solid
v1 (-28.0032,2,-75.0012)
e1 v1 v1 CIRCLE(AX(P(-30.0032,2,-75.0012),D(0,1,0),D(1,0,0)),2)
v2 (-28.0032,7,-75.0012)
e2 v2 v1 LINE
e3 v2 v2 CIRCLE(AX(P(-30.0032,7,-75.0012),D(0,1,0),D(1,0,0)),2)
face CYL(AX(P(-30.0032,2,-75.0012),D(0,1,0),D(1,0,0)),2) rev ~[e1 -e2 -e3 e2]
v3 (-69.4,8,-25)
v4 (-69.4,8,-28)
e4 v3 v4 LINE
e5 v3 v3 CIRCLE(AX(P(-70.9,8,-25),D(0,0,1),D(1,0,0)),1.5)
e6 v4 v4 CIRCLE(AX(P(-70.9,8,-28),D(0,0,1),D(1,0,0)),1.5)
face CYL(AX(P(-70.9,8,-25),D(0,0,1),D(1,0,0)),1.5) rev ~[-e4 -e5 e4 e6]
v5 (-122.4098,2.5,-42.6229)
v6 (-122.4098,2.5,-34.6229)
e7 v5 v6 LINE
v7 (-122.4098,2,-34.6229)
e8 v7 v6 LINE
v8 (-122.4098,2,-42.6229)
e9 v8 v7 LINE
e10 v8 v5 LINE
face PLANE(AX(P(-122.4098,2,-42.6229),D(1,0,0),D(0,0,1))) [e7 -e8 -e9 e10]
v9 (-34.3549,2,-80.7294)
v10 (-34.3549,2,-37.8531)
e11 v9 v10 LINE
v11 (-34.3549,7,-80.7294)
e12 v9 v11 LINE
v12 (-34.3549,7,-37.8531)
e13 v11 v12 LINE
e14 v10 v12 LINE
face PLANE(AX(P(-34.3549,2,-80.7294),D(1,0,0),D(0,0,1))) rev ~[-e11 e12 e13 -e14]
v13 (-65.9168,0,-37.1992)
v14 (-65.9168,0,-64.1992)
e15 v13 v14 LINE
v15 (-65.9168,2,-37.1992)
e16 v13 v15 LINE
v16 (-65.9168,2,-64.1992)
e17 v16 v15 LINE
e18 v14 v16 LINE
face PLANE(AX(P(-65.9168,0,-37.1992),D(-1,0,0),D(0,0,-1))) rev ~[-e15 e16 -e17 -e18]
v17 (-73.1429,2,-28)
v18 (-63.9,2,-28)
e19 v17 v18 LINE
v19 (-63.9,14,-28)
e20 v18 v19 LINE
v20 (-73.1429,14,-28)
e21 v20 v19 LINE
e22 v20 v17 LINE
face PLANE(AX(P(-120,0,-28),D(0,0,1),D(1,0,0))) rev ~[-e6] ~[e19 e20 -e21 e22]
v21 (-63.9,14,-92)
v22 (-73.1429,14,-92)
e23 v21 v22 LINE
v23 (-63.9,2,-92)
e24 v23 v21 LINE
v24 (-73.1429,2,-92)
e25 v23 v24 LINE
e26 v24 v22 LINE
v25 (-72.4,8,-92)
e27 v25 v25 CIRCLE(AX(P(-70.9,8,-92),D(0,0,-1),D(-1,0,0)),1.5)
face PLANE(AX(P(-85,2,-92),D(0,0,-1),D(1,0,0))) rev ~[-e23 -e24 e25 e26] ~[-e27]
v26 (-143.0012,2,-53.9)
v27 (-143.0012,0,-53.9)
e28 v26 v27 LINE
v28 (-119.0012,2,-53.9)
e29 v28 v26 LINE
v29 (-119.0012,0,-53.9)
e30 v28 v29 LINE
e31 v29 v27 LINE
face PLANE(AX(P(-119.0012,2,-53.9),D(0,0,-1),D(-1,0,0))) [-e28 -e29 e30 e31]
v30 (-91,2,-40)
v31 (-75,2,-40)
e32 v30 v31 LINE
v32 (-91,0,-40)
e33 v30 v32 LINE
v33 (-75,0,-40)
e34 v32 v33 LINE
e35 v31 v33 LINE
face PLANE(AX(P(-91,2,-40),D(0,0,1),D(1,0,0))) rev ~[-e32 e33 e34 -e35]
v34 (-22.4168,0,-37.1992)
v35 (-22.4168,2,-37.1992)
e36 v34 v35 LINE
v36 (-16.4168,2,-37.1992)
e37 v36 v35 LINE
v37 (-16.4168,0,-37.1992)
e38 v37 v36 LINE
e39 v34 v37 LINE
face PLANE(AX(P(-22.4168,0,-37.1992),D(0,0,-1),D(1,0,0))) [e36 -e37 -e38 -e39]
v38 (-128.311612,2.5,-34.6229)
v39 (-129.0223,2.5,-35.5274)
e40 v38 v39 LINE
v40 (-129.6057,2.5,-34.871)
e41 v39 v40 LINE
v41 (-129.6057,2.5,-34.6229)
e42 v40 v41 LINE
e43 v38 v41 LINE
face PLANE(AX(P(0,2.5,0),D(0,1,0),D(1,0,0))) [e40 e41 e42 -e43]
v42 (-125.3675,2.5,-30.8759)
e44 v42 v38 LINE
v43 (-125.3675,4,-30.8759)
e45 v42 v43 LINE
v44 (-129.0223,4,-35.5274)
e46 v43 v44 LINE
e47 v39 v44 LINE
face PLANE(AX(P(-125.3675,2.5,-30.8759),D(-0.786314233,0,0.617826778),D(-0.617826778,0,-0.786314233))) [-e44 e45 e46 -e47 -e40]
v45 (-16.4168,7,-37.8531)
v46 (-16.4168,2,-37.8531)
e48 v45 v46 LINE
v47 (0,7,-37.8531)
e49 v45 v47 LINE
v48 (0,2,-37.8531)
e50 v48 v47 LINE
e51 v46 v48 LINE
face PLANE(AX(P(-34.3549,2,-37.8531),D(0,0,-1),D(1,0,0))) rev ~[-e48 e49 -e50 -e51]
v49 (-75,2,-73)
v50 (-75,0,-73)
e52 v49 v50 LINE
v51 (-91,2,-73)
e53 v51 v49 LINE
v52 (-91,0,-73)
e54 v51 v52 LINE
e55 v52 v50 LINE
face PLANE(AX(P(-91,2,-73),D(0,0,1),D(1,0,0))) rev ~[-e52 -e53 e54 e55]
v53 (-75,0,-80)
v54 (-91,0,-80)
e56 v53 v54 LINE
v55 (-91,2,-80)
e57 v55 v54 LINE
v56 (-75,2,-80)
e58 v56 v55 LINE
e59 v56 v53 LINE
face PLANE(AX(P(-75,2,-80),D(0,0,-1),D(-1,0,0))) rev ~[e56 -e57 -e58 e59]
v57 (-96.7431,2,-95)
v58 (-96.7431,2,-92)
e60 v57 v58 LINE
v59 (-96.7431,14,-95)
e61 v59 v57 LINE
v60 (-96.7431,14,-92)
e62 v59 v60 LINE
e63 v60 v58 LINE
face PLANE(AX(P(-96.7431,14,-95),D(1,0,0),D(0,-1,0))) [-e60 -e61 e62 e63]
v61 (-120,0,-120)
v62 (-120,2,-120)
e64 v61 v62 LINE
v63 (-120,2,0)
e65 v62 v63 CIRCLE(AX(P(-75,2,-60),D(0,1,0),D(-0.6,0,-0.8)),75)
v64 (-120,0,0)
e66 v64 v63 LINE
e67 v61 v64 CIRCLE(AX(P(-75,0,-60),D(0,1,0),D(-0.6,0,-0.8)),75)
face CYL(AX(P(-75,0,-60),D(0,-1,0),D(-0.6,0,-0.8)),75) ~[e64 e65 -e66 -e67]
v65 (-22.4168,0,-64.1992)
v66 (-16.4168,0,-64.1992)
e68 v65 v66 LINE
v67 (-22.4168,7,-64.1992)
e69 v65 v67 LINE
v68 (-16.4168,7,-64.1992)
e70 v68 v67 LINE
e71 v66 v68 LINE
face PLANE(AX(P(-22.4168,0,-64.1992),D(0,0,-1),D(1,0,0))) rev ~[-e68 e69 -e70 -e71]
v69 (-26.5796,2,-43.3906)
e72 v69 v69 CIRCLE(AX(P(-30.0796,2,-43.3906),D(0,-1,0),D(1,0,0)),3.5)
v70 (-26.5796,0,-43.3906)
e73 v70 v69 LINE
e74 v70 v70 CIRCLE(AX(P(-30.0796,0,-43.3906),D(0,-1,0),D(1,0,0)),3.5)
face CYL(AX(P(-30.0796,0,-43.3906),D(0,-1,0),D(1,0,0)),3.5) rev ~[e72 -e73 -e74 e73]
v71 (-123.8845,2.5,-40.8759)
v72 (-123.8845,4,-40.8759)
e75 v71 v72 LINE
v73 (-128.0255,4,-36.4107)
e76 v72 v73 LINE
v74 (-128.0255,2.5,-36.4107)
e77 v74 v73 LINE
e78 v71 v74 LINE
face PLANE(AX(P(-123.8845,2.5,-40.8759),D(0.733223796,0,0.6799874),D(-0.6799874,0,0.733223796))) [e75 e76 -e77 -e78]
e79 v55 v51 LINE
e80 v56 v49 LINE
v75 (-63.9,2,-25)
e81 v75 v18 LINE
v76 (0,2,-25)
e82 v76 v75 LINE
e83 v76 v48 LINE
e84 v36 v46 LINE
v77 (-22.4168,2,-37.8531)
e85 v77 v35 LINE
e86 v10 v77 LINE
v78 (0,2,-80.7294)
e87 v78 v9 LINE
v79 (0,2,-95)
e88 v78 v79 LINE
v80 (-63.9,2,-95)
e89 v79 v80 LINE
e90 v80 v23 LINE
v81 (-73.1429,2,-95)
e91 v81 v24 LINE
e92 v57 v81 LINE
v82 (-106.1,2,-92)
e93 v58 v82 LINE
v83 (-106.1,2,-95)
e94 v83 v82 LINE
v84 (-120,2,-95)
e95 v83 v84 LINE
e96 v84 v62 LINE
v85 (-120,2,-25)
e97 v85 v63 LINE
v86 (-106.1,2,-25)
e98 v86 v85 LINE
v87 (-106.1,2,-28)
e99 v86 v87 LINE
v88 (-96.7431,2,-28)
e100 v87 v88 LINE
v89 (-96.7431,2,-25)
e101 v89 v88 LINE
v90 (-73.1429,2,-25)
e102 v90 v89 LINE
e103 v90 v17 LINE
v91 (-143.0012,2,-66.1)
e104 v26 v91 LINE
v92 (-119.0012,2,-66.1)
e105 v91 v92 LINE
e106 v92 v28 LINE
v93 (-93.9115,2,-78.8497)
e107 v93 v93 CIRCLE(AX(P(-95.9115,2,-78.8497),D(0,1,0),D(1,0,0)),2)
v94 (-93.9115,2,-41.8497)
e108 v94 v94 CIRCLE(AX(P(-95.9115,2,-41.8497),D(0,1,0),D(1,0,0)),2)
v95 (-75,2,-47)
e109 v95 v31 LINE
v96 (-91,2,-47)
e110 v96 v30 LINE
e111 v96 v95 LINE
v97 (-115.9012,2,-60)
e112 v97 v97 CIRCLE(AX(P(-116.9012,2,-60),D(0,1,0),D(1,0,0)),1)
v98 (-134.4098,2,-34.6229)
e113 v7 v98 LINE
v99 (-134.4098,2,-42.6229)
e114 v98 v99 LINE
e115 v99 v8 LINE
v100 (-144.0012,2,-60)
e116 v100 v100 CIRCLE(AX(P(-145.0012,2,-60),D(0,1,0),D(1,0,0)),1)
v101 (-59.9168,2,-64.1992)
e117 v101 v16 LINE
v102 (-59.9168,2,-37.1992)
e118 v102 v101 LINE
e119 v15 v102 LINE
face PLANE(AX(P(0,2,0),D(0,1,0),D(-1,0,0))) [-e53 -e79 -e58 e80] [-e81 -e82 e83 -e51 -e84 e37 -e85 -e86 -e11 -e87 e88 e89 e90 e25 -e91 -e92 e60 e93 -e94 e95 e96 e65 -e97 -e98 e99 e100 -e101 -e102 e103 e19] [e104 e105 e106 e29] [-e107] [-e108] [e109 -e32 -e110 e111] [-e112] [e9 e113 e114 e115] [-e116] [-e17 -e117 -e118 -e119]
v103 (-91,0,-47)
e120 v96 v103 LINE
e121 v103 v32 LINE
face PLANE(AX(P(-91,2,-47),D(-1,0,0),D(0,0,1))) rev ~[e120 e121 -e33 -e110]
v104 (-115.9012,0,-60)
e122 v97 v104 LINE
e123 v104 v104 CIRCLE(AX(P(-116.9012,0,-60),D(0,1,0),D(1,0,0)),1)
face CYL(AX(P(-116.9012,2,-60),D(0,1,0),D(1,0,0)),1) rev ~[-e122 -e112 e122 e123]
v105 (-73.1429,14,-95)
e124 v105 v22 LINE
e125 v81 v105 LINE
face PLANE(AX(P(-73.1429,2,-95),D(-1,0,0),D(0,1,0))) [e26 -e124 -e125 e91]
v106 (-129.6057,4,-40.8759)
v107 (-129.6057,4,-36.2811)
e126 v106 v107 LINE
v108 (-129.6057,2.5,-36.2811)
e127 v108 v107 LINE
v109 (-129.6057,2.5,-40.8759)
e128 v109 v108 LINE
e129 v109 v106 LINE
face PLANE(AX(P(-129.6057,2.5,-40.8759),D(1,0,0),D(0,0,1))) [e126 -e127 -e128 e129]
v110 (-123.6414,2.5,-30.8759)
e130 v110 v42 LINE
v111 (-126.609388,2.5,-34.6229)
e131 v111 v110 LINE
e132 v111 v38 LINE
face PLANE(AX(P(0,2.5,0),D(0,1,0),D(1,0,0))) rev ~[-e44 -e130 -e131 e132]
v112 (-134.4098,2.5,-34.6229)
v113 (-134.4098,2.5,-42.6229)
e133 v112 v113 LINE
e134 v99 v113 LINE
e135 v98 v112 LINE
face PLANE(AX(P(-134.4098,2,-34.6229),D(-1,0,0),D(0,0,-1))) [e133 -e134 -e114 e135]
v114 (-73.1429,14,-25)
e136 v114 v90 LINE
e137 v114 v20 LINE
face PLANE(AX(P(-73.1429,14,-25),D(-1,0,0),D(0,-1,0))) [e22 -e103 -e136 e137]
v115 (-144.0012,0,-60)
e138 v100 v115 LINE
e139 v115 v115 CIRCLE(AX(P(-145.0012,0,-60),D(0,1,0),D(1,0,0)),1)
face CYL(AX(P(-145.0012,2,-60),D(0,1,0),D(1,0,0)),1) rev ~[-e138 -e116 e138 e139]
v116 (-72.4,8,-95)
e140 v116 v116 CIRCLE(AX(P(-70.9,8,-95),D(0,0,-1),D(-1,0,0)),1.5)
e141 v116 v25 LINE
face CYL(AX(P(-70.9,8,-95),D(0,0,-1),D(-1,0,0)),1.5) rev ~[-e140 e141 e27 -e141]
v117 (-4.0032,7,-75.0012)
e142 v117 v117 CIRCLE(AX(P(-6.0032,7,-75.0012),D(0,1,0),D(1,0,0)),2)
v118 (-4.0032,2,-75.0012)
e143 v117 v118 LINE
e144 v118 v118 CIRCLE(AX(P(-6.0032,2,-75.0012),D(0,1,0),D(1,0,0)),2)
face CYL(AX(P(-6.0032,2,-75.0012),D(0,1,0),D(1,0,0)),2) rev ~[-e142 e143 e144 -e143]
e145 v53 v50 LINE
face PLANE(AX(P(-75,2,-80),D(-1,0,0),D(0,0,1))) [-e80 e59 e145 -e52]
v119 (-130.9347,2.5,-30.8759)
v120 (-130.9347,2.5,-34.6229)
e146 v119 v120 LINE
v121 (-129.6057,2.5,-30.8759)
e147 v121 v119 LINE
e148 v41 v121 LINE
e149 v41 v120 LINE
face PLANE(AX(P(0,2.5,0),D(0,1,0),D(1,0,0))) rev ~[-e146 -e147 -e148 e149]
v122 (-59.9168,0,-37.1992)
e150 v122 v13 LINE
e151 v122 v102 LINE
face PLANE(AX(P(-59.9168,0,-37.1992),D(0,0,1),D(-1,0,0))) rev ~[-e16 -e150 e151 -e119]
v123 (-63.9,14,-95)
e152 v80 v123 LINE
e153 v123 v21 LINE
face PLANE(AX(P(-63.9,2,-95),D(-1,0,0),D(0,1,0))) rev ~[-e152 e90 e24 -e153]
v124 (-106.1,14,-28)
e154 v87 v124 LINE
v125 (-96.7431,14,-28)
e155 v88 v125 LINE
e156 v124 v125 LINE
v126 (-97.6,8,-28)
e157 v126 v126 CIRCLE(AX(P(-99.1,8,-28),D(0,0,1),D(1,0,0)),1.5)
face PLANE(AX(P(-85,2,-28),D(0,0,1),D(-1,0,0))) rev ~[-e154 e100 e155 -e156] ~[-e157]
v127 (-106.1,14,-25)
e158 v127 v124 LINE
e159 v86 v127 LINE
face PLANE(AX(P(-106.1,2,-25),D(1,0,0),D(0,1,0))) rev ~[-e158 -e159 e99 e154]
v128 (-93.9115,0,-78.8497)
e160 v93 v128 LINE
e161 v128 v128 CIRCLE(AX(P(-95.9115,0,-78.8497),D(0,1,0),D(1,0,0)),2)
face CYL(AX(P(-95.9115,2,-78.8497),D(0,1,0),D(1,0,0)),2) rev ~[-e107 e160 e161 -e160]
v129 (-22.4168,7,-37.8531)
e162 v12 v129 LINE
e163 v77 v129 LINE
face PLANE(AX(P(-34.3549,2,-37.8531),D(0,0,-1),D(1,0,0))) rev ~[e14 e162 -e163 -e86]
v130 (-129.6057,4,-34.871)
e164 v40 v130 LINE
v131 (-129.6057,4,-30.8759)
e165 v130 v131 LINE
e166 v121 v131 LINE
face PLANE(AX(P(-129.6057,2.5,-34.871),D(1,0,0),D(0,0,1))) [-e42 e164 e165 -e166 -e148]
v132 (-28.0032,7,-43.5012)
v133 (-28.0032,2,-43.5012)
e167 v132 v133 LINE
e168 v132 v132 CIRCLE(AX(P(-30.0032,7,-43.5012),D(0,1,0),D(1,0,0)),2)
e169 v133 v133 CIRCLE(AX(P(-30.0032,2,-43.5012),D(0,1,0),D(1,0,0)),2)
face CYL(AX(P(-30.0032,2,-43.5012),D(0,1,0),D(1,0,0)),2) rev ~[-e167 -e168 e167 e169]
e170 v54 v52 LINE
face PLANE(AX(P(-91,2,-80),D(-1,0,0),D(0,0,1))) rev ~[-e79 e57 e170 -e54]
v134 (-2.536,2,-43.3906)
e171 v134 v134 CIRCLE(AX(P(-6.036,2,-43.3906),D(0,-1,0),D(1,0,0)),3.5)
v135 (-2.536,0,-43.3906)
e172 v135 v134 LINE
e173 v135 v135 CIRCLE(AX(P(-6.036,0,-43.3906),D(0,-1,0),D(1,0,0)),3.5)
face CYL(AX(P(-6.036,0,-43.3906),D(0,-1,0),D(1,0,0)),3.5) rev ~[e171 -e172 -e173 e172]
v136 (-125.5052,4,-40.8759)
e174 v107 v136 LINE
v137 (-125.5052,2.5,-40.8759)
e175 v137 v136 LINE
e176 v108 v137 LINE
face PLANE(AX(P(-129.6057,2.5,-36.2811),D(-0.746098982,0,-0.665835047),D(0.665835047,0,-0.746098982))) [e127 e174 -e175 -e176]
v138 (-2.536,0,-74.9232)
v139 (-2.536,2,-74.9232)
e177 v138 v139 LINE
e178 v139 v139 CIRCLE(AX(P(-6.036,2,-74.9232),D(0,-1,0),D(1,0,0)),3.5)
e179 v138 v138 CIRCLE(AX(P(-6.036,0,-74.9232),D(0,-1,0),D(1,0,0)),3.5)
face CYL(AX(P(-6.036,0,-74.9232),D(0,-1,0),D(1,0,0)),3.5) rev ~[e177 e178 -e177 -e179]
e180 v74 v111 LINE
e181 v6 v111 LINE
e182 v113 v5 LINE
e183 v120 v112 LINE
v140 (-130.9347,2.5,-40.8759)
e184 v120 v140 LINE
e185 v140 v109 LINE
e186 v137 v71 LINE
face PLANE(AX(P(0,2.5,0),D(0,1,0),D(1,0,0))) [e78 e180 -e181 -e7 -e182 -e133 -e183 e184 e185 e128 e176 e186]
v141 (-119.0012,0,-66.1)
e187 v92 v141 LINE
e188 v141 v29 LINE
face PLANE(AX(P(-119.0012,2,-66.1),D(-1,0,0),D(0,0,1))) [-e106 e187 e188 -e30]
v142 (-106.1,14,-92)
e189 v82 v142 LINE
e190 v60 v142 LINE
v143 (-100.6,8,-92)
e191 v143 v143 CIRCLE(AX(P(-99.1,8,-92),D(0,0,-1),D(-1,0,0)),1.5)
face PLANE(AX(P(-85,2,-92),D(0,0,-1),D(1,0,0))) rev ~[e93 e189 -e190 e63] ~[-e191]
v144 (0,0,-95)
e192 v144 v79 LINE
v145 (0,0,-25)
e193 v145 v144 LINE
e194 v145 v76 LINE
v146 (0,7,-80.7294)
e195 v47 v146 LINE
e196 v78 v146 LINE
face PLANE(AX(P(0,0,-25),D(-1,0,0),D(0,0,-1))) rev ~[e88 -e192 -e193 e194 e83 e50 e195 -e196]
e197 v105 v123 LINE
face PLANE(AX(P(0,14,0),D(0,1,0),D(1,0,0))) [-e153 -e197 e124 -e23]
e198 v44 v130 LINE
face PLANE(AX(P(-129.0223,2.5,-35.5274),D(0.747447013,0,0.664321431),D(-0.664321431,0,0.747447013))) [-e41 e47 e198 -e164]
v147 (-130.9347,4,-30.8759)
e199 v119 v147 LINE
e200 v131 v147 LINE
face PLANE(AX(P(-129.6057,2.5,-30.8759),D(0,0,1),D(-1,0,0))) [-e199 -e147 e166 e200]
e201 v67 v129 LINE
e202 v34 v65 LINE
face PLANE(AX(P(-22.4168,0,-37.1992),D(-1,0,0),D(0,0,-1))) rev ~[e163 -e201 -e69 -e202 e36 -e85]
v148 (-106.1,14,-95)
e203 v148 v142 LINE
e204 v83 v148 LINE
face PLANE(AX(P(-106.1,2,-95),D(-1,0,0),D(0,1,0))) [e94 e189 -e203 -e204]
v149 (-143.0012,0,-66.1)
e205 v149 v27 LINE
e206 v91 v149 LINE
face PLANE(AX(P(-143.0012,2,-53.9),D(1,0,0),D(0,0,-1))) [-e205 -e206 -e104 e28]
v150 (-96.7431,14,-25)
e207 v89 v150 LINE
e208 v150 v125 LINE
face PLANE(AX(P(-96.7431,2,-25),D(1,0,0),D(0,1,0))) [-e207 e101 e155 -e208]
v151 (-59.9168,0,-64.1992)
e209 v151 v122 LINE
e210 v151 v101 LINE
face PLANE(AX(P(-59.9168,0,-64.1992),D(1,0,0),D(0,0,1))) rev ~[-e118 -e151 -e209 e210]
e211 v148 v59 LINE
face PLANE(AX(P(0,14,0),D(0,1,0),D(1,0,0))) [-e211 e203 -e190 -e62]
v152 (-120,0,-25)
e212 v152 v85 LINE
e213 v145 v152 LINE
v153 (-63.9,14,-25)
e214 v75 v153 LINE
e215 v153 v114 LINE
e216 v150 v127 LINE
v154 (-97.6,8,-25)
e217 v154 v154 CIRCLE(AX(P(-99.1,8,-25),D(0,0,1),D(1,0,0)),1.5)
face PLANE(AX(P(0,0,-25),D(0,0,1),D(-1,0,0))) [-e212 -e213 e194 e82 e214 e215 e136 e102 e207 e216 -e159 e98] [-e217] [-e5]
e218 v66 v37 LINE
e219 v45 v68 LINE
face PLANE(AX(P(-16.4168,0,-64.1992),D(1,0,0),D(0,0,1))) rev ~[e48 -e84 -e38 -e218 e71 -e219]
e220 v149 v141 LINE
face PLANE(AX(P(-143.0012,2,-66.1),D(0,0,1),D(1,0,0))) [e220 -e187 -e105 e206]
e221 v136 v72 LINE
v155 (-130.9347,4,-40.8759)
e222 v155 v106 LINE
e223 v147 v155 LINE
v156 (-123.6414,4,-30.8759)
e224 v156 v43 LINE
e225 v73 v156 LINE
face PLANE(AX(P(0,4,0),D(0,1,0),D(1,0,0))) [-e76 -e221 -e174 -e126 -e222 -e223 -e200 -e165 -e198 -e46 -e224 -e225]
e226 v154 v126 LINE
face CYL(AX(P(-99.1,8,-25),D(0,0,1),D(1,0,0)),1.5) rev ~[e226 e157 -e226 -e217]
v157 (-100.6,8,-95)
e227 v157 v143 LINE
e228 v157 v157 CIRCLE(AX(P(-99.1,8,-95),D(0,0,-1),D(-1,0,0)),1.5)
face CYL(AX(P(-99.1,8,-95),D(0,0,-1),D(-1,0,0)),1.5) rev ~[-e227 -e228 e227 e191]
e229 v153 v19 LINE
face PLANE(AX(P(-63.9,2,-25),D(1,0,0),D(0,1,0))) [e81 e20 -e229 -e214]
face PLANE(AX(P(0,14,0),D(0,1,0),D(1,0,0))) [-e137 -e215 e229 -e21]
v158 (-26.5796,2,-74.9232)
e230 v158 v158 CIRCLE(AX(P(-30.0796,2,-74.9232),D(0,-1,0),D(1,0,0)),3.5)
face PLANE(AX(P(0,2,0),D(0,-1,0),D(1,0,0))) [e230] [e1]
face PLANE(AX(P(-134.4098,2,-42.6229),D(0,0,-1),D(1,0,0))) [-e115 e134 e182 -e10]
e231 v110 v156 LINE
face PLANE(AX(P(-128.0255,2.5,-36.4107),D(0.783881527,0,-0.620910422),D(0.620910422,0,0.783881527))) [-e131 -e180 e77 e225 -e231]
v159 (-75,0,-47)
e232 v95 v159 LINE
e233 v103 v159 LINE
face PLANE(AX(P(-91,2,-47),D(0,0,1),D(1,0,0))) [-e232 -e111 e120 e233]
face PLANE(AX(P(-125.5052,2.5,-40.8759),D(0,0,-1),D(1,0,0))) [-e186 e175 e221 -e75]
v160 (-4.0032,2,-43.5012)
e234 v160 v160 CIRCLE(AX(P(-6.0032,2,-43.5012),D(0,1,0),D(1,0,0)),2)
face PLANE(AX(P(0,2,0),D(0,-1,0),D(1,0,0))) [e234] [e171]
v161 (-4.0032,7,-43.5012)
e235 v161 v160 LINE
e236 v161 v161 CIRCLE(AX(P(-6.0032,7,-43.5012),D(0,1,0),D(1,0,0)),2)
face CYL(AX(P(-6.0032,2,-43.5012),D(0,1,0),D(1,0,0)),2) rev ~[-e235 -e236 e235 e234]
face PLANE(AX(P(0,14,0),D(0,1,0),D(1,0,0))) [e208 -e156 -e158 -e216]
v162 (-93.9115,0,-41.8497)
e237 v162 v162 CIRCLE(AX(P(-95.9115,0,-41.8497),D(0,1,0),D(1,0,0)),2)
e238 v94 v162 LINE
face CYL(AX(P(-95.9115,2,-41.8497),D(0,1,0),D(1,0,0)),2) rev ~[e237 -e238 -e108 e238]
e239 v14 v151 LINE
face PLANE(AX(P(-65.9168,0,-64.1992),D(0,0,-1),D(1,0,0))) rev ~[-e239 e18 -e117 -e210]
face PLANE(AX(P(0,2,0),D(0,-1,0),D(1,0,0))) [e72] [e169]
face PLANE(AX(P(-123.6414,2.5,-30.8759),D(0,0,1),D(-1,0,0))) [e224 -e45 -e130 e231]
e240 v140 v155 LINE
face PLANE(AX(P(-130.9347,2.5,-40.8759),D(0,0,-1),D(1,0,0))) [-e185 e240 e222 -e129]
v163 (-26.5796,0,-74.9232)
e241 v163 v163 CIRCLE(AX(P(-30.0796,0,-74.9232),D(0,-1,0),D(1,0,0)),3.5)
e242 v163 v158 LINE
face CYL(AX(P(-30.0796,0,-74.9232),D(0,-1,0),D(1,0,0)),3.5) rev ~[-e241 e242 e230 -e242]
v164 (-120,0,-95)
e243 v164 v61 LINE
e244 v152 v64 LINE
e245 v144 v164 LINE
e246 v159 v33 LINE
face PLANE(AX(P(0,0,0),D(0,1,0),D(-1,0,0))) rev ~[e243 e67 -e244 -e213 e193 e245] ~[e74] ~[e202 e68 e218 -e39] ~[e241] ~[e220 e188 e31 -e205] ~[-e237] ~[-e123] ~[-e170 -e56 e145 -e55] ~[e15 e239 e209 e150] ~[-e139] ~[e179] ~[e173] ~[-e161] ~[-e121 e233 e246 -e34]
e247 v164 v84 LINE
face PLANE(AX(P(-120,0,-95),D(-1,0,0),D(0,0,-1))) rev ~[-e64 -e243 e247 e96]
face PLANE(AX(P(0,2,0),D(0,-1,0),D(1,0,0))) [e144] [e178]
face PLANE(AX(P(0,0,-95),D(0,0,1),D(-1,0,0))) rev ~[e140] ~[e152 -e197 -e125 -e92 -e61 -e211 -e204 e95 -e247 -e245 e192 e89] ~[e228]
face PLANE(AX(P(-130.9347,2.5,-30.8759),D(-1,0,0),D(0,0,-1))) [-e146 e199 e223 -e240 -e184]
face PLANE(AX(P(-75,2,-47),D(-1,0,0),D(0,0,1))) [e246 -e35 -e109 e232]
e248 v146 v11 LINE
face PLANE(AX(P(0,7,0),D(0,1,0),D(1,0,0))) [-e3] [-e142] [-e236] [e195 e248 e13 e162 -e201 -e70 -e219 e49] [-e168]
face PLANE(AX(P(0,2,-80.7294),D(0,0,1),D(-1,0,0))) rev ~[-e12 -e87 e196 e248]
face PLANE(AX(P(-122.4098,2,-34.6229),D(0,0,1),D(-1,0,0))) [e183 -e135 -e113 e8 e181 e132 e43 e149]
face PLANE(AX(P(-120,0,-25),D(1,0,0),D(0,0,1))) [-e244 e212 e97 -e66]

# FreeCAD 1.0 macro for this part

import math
import FreeCAD as App
import Part
import Sketcher
Q = App.Units.Quantity

doc = App.newDocument("Part")
body = doc.addObject("PartDesign::Body", "Body")

# Sketch on XZ plane
sketch1 = body.newObject("Sketcher::SketchObject", "Sketch")
sketch1.AttachmentSupport = (doc.getObject("XZ_Plane"), [""])
sketch1.MapMode = "FlatFace"
sketch1.addGeometry([
    Part.LineSegment(App.Vector(-120, -95, 0), App.Vector(-120, -120, 0)),  # 0
    Part.ArcOfCircle(Part.Circle(App.Vector(-75, -60, 0), App.Vector(0, 0, 1), 75), math.radians(127), math.radians(233)),  # 1
    Part.LineSegment(App.Vector(-120, 0, 0), App.Vector(-120, -25, 0)),  # 2
    Part.LineSegment(App.Vector(-120, -25, 0), App.Vector(0, -25, 0)),  # 3
    Part.LineSegment(App.Vector(0, -25, 0), App.Vector(0, -95, 0)),  # 4
    Part.LineSegment(App.Vector(0, -95, 0), App.Vector(-120, -95, 0)),  # 5
], False)
sketch1.addConstraint([
    Sketcher.Constraint("Coincident", 0, 2, 1, 2),
    Sketcher.Constraint("Coincident", 1, 1, 2, 1),
    Sketcher.Constraint("Coincident", 2, 2, 3, 1),
    Sketcher.Constraint("Coincident", 3, 2, 4, 1),
    Sketcher.Constraint("Coincident", 4, 2, 5, 1),
    Sketcher.Constraint("Coincident", 5, 2, 0, 1),
    Sketcher.Constraint("Vertical", 0),
    Sketcher.Constraint("Vertical", 2),
    Sketcher.Constraint("Horizontal", 3),
    Sketcher.Constraint("Vertical", 4),
    Sketcher.Constraint("Horizontal", 5),
    Sketcher.Constraint("PointOnObject", 1, 1, -1),
    Sketcher.Constraint("PointOnObject", 3, 2, -2),
    Sketcher.Constraint("Vertical", 0, 2, 1, 1),
    Sketcher.Constraint("Equal", 0, 2),
    Sketcher.Constraint("Radius", 1, Q("75 mm")),
    Sketcher.Constraint("DistanceX", 3, 1, 3, 2, Q("120 mm")),
    Sketcher.Constraint("DistanceY", 0, 2, 0, 1, Q("25 mm")),
    Sketcher.Constraint("DistanceX", 1, 3, -1, 1, Q("75 mm")),
])
pad1 = body.newObject("PartDesign::Pad", "Pad")
pad1.Profile = sketch1
pad1.Length = 2
pad1.Reversed = True

# Sketch on XZ plane
sketch2 = body.newObject("Sketcher::SketchObject", "Sketch001")
sketch2.AttachmentSupport = (doc.getObject("XZ_Plane"), [""])
sketch2.MapMode = "FlatFace"
sketch2.AttachmentOffset = App.Placement(App.Vector(0, 0, -2), App.Rotation())
sketch2.addGeometry([
    Part.Circle(App.Vector(-30, -43.5, 0), App.Vector(0, 0, 1), 2),
    Part.Circle(App.Vector(-30, -75, 0), App.Vector(0, 0, 1), 2),
    Part.Circle(App.Vector(-6, -75, 0), App.Vector(0, 0, 1), 2),
    Part.Circle(App.Vector(-6, -43.5, 0), App.Vector(0, 0, 1), 2),
], False)
sketch2.addConstraint([
    Sketcher.Constraint("Equal", 0, 1),
    Sketcher.Constraint("Equal", 1, 2),
    Sketcher.Constraint("Equal", 2, 3),
    Sketcher.Constraint("Horizontal", 1, 3, 2, 3),
    Sketcher.Constraint("Horizontal", 0, 3, 3, 3),
    Sketcher.Constraint("Vertical", 0, 3, 1, 3),
    Sketcher.Constraint("Vertical", 2, 3, 3, 3),
    Sketcher.Constraint("Diameter", 0, Q("4 mm")),
    Sketcher.Constraint("DistanceX", 1, 3, 2, 3, Q("24 mm")),
    Sketcher.Constraint("DistanceY", 1, 3, 0, 3, Q("31.5 mm")),
    Sketcher.Constraint("DistanceX", 2, 3, -1, 1, Q("6.0032 mm")),
    Sketcher.Constraint("DistanceY", 0, 3, -1, 1, Q("43.5012 mm")),
])
pocket1 = body.newObject("PartDesign::Pocket", "Pocket")
pocket1.Profile = sketch2
pocket1.Length = 11
pocket1.Reversed = True

# Sketch on XZ plane
sketch3 = body.newObject("Sketcher::SketchObject", "Sketch002")
sketch3.AttachmentSupport = (doc.getObject("XZ_Plane"), [""])
sketch3.MapMode = "FlatFace"
sketch3.AttachmentOffset = App.Placement(App.Vector(0, 0, -2), App.Rotation())
sketch3.addGeometry([
    Part.LineSegment(App.Vector(-75, -73, 0), App.Vector(-75, -80, 0)),  # 0
    Part.LineSegment(App.Vector(-75, -80, 0), App.Vector(-91, -80, 0)),  # 1
    Part.LineSegment(App.Vector(-91, -80, 0), App.Vector(-91, -73, 0)),  # 2
    Part.LineSegment(App.Vector(-91, -73, 0), App.Vector(-75, -73, 0)),  # 3
    Part.LineSegment(App.Vector(-91, -47, 0), App.Vector(-91, -40, 0)),  # 4
    Part.LineSegment(App.Vector(-91, -40, 0), App.Vector(-75, -40, 0)),  # 5
    Part.LineSegment(App.Vector(-75, -40, 0), App.Vector(-75, -47, 0)),  # 6
    Part.LineSegment(App.Vector(-75, -47, 0), App.Vector(-91, -47, 0)),  # 7
], False)
sketch3.addConstraint([
    Sketcher.Constraint("Coincident", 0, 2, 1, 1),
    Sketcher.Constraint("Coincident", 1, 2, 2, 1),
    Sketcher.Constraint("Coincident", 2, 2, 3, 1),
    Sketcher.Constraint("Coincident", 3, 2, 0, 1),
    Sketcher.Constraint("Coincident", 4, 2, 5, 1),
    Sketcher.Constraint("Coincident", 5, 2, 6, 1),
    Sketcher.Constraint("Coincident", 6, 2, 7, 1),
    Sketcher.Constraint("Coincident", 7, 2, 4, 1),
    Sketcher.Constraint("Vertical", 0),
    Sketcher.Constraint("Horizontal", 1),
    Sketcher.Constraint("Vertical", 2),
    Sketcher.Constraint("Horizontal", 3),
    Sketcher.Constraint("Vertical", 4),
    Sketcher.Constraint("Horizontal", 5),
    Sketcher.Constraint("Vertical", 6),
    Sketcher.Constraint("Horizontal", 7),
    Sketcher.Constraint("Vertical", 2, 2, 4, 2),
    Sketcher.Constraint("Vertical", 3, 2, 5, 2),
    Sketcher.Constraint("Equal", 2, 4),
    Sketcher.Constraint("DistanceX", 1, 2, 1, 1, Q("16 mm")),
    Sketcher.Constraint("DistanceY", 0, 2, 0, 1, Q("7 mm")),
    Sketcher.Constraint("DistanceX", 0, 2, -1, 1, Q("75 mm")),
    Sketcher.Constraint("DistanceY", 0, 2, -1, 1, Q("80 mm")),
    Sketcher.Constraint("DistanceY", 4, 2, -1, 1, Q("40 mm")),
])
pocket2 = body.newObject("PartDesign::Pocket", "Pocket001")
pocket2.Profile = sketch3
pocket2.Length = 3
pocket2.Reversed = True

# Sketch on XZ plane
sketch4 = body.newObject("Sketcher::SketchObject", "Sketch003")
sketch4.AttachmentSupport = (doc.getObject("XZ_Plane"), [""])
sketch4.MapMode = "FlatFace"
sketch4.AttachmentOffset = App.Placement(App.Vector(0, 0, -2), App.Rotation())
sketch4.addGeometry([
    Part.LineSegment(App.Vector(-101.1, -25, 0), App.Vector(-68.9, -25, 0)),  # 0
    Part.LineSegment(App.Vector(-68.9, -25, 0), App.Vector(-68.9, -28, 0)),  # 1
    Part.LineSegment(App.Vector(-68.9, -28, 0), App.Vector(-101.1, -28, 0)),  # 2
    Part.LineSegment(App.Vector(-101.1, -28, 0), App.Vector(-101.1, -25, 0)),  # 3
    Part.LineSegment(App.Vector(-68.9, -95, 0), App.Vector(-101.1, -95, 0)),  # 4
    Part.LineSegment(App.Vector(-101.1, -95, 0), App.Vector(-101.1, -92, 0)),  # 5
    Part.LineSegment(App.Vector(-101.1, -92, 0), App.Vector(-68.9, -92, 0)),  # 6
    Part.LineSegment(App.Vector(-68.9, -92, 0), App.Vector(-68.9, -95, 0)),  # 7
], False)
sketch4.addConstraint([
    Sketcher.Constraint("Coincident", 0, 2, 1, 1),
    Sketcher.Constraint("Coincident", 1, 2, 2, 1),
    Sketcher.Constraint("Coincident", 2, 2, 3, 1),
    Sketcher.Constraint("Coincident", 3, 2, 0, 1),
    Sketcher.Constraint("Coincident", 4, 2, 5, 1),
    Sketcher.Constraint("Coincident", 5, 2, 6, 1),
    Sketcher.Constraint("Coincident", 6, 2, 7, 1),
    Sketcher.Constraint("Coincident", 7, 2, 4, 1),
    Sketcher.Constraint("Horizontal", 0),
    Sketcher.Constraint("Vertical", 1),
    Sketcher.Constraint("Horizontal", 2),
    Sketcher.Constraint("Vertical", 3),
    Sketcher.Constraint("Horizontal", 4),
    Sketcher.Constraint("Vertical", 5),
    Sketcher.Constraint("Horizontal", 6),
    Sketcher.Constraint("Vertical", 7),
    Sketcher.Constraint("Vertical", 3, 2, 4, 2),
    Sketcher.Constraint("Vertical", 1, 2, 6, 2),
    Sketcher.Constraint("Equal", 3, 5),
    Sketcher.Constraint("DistanceY", 1, 2, 1, 1, Q("3 mm")),
    Sketcher.Constraint("DistanceY", 4, 2, 2, 2, Q("67 mm")),
    Sketcher.Constraint("DistanceX", 0, 2, -1, 1, Q("68.9 mm")),
    Sketcher.Constraint("DistanceX", 0, 1, 0, 2, Q("32.2 mm")),
    Sketcher.Constraint("DistanceY", 0, 2, -1, 1, Q("25 mm")),
])
pad2 = body.newObject("PartDesign::Pad", "Pad001")
pad2.Profile = sketch4
pad2.Length = 12
pad2.Reversed = True

# Sketch on XY plane
sketch5 = body.newObject("Sketcher::SketchObject", "Sketch004")
sketch5.AttachmentSupport = (doc.getObject("XY_Plane"), [""])
sketch5.MapMode = "FlatFace"
sketch5.AttachmentOffset = App.Placement(App.Vector(0, 0, -25), App.Rotation())
sketch5.addGeometry([
    Part.Circle(App.Vector(-99.1, 8, 0), App.Vector(0, 0, 1), 1.5),
    Part.Circle(App.Vector(-70.9, 8, 0), App.Vector(0, 0, 1), 1.5),
], False)
sketch5.addConstraint([
    Sketcher.Constraint("Equal", 0, 1),
    Sketcher.Constraint("Horizontal", 0, 3, 1, 3),
    Sketcher.Constraint("Diameter", 0, Q("3 mm")),
    Sketcher.Constraint("DistanceY", -1, 1, 0, 3, Q("8 mm")),
    Sketcher.Constraint("DistanceX", 0, 3, -1, 1, Q("99.1 mm")),
    Sketcher.Constraint("DistanceX", 1, 3, -1, 1, Q("70.9 mm")),
])
pocket3 = body.newObject("PartDesign::Pocket", "Pocket002")
pocket3.Profile = sketch5
pocket3.Length = 3

# Sketch on XY plane
sketch6 = body.newObject("Sketcher::SketchObject", "Sketch005")
sketch6.AttachmentSupport = (doc.getObject("XY_Plane"), [""])
sketch6.MapMode = "FlatFace"
sketch6.AttachmentOffset = App.Placement(App.Vector(0, 0, -95), App.Rotation())
sketch6.addGeometry([
    Part.Circle(App.Vector(-70.9, 8, 0), App.Vector(0, 0, 1), 1.5),
    Part.Circle(App.Vector(-99.1, 8, 0), App.Vector(0, 0, 1), 1.5),
], False)
sketch6.addConstraint([
    Sketcher.Constraint("Equal", 0, 1),
    Sketcher.Constraint("Horizontal", 0, 3, 1, 3),
    Sketcher.Constraint("Diameter", 0, Q("3 mm")),
    Sketcher.Constraint("DistanceY", -1, 1, 0, 3, Q("8 mm")),
    Sketcher.Constraint("DistanceX", 0, 3, -1, 1, Q("70.9 mm")),
    Sketcher.Constraint("DistanceX", 1, 3, -1, 1, Q("99.1 mm")),
])
pocket4 = body.newObject("PartDesign::Pocket", "Pocket003")
pocket4.Profile = sketch6
pocket4.Length = 3
pocket4.Reversed = True

# Sketch on XZ plane
sketch7 = body.newObject("Sketcher::SketchObject", "Sketch006")
sketch7.AttachmentSupport = (doc.getObject("XZ_Plane"), [""])
sketch7.MapMode = "FlatFace"
sketch7.AttachmentOffset = App.Placement(App.Vector(0, 0, -2), App.Rotation())
sketch7.addGeometry([
    Part.Circle(App.Vector(-145, -60, 0), App.Vector(0, 0, 1), 1),
    Part.Circle(App.Vector(-116.9, -60, 0), App.Vector(0, 0, 1), 1),
], False)
sketch7.addConstraint([
    Sketcher.Constraint("Equal", 0, 1),
    Sketcher.Constraint("Horizontal", 0, 3, 1, 3),
    Sketcher.Constraint("Diameter", 0, Q("2 mm")),
    Sketcher.Constraint("DistanceX", 0, 3, 1, 3, Q("28.1 mm")),
    Sketcher.Constraint("DistanceY", 0, 3, -1, 1, Q("60 mm")),
    Sketcher.Constraint("DistanceX", 0, 3, -1, 1, Q("145.0012 mm")),
])
pocket5 = body.newObject("PartDesign::Pocket", "Pocket004")
pocket5.Profile = sketch7
pocket5.Length = 3
pocket5.Reversed = True

# Sketch on XZ plane
sketch8 = body.newObject("Sketcher::SketchObject", "Sketch007")
sketch8.AttachmentSupport = (doc.getObject("XZ_Plane"), [""])
sketch8.MapMode = "FlatFace"
sketch8.AttachmentOffset = App.Placement(App.Vector(0, 0, -2), App.Rotation())
sketch8.addGeometry([
    Part.LineSegment(App.Vector(-143, -66, 0), App.Vector(-143, -54, 0)),
    Part.LineSegment(App.Vector(-143, -54, 0), App.Vector(-119, -54, 0)),
    Part.LineSegment(App.Vector(-119, -54, 0), App.Vector(-119, -66, 0)),
    Part.LineSegment(App.Vector(-119, -66, 0), App.Vector(-143, -66, 0)),
], False)
sketch8.addConstraint([
    Sketcher.Constraint("Coincident", 0, 2, 1, 1),
    Sketcher.Constraint("Coincident", 1, 2, 2, 1),
    Sketcher.Constraint("Coincident", 2, 2, 3, 1),
    Sketcher.Constraint("Coincident", 3, 2, 0, 1),
    Sketcher.Constraint("Vertical", 0),
    Sketcher.Constraint("Horizontal", 1),
    Sketcher.Constraint("Vertical", 2),
    Sketcher.Constraint("Horizontal", 3),
    Sketcher.Constraint("DistanceX", 1, 1, 1, 2, Q("24 mm")),
    Sketcher.Constraint("DistanceY", 0, 1, 0, 2, Q("12.2 mm")),
    Sketcher.Constraint("DistanceY", 0, 2, -1, 1, Q("53.9 mm")),
    Sketcher.Constraint("DistanceX", 0, 2, -1, 1, Q("143.0012 mm")),
])
pocket6 = body.newObject("PartDesign::Pocket", "Pocket005")
pocket6.Profile = sketch8
pocket6.Length = 2
pocket6.Reversed = True

# Sketch on XZ plane
sketch9 = body.newObject("Sketcher::SketchObject", "Sketch008")
sketch9.AttachmentSupport = (doc.getObject("XZ_Plane"), [""])
sketch9.MapMode = "FlatFace"
sketch9.AttachmentOffset = App.Placement(App.Vector(0, 0, -2), App.Rotation())
sketch9.addGeometry([
    Part.LineSegment(App.Vector(-34, -38, 0), App.Vector(0, -38, 0)),
    Part.LineSegment(App.Vector(0, -38, 0), App.Vector(0, -81, 0)),
    Part.LineSegment(App.Vector(0, -81, 0), App.Vector(-34, -81, 0)),
    Part.LineSegment(App.Vector(-34, -81, 0), App.Vector(-34, -38, 0)),
], False)
sketch9.addConstraint([
    Sketcher.Constraint("Coincident", 0, 2, 1, 1),
    Sketcher.Constraint("Coincident", 1, 2, 2, 1),
    Sketcher.Constraint("Coincident", 2, 2, 3, 1),
    Sketcher.Constraint("Coincident", 3, 2, 0, 1),
    Sketcher.Constraint("Horizontal", 0),
    Sketcher.Constraint("Vertical", 1),
    Sketcher.Constraint("Horizontal", 2),
    Sketcher.Constraint("Vertical", 3),
    Sketcher.Constraint("PointOnObject", 0, 2, -2),
    Sketcher.Constraint("DistanceX", 0, 1, 0, 2, Q("34.355 mm")),
    Sketcher.Constraint("DistanceY", 1, 2, 1, 1, Q("42.8763 mm")),
    Sketcher.Constraint("DistanceY", 0, 2, -1, 1, Q("37.853 mm")),
])
pad3 = body.newObject("PartDesign::Pad", "Pad002")
pad3.Profile = sketch9
pad3.Length = 5
pad3.Reversed = True

# Sketch on XZ plane
sketch10 = body.newObject("Sketcher::SketchObject", "Sketch009")
sketch10.AttachmentSupport = (doc.getObject("XZ_Plane"), [""])
sketch10.MapMode = "FlatFace"
sketch10.AttachmentOffset = App.Placement(App.Vector(0, 0, -7), App.Rotation())
sketch10.addGeometry([
    Part.Circle(App.Vector(-30, -43.5, 0), App.Vector(0, 0, 1), 2),
    Part.Circle(App.Vector(-30, -75, 0), App.Vector(0, 0, 1), 2),
    Part.Circle(App.Vector(-6, -43.5, 0), App.Vector(0, 0, 1), 2),
    Part.Circle(App.Vector(-6, -75, 0), App.Vector(0, 0, 1), 2),
], False)
sketch10.addConstraint([
    Sketcher.Constraint("Equal", 0, 1),
    Sketcher.Constraint("Equal", 1, 2),
    Sketcher.Constraint("Equal", 2, 3),
    Sketcher.Constraint("Horizontal", 0, 3, 2, 3),
    Sketcher.Constraint("Horizontal", 1, 3, 3, 3),
    Sketcher.Constraint("Vertical", 0, 3, 1, 3),
    Sketcher.Constraint("Vertical", 2, 3, 3, 3),
    Sketcher.Constraint("Diameter", 0, Q("4 mm")),
    Sketcher.Constraint("DistanceX", 0, 3, 2, 3, Q("24 mm")),
    Sketcher.Constraint("DistanceY", 1, 3, 0, 3, Q("31.5 mm")),
    Sketcher.Constraint("DistanceX", 0, 3, -1, 1, Q("30.0032 mm")),
    Sketcher.Constraint("DistanceY", 0, 3, -1, 1, Q("43.5012 mm")),
])
pocket7 = body.newObject("PartDesign::Pocket", "Pocket006")
pocket7.Profile = sketch10
pocket7.Length = 11
pocket7.Reversed = True

# Sketch on XZ plane
sketch11 = body.newObject("Sketcher::SketchObject", "Sketch010")
sketch11.AttachmentSupport = (doc.getObject("XZ_Plane"), [""])
sketch11.MapMode = "FlatFace"
sketch11.AttachmentOffset = App.Placement(App.Vector(0, 0, -2), App.Rotation())
sketch11.addGeometry([
    Part.LineSegment(App.Vector(-134, -35, 0), App.Vector(-122, -35, 0)),
    Part.LineSegment(App.Vector(-122, -35, 0), App.Vector(-122, -43, 0)),
    Part.LineSegment(App.Vector(-122, -43, 0), App.Vector(-134, -43, 0)),
    Part.LineSegment(App.Vector(-134, -43, 0), App.Vector(-134, -35, 0)),
], False)
sketch11.addConstraint([
    Sketcher.Constraint("Coincident", 0, 2, 1, 1),
    Sketcher.Constraint("Coincident", 1, 2, 2, 1),
    Sketcher.Constraint("Coincident", 2, 2, 3, 1),
    Sketcher.Constraint("Coincident", 3, 2, 0, 1),
    Sketcher.Constraint("Horizontal", 0),
    Sketcher.Constraint("Vertical", 1),
    Sketcher.Constraint("Horizontal", 2),
    Sketcher.Constraint("Vertical", 3),
    Sketcher.Constraint("DistanceX", 0, 1, 0, 2, Q("12 mm")),
    Sketcher.Constraint("DistanceY", 1, 2, 1, 1, Q("8 mm")),
    Sketcher.Constraint("DistanceY", 0, 2, -1, 1, Q("34.623 mm")),
    Sketcher.Constraint("DistanceX", 0, 2, -1, 1, Q("122.4098 mm")),
])
pad4 = body.newObject("PartDesign::Pad", "Pad003")
pad4.Profile = sketch11
pad4.Length = 0.5
pad4.Reversed = True

# Sketch on XZ plane
sketch12 = body.newObject("Sketcher::SketchObject", "Sketch011")
sketch12.AttachmentSupport = (doc.getObject("XZ_Plane"), [""])
sketch12.MapMode = "FlatFace"
sketch12.AttachmentOffset = App.Placement(App.Vector(0, 0, -2.5), App.Rotation())
sketch12.addGeometry([
    Part.LineSegment(App.Vector(-125.4, -30.9, 0), App.Vector(-123.6, -30.9, 0)),  # 0
    Part.LineSegment(App.Vector(-123.6, -30.9, 0), App.Vector(-128, -36.4, 0)),  # 1
    Part.LineSegment(App.Vector(-128, -36.4, 0), App.Vector(-123.9, -40.9, 0)),  # 2
    Part.LineSegment(App.Vector(-123.9, -40.9, 0), App.Vector(-125.5, -40.9, 0)),  # 3
    Part.LineSegment(App.Vector(-125.5, -40.9, 0), App.Vector(-129.6, -36.3, 0)),  # 4
    Part.LineSegment(App.Vector(-129.6, -36.3, 0), App.Vector(-129.6, -40.9, 0)),  # 5
    Part.LineSegment(App.Vector(-129.6, -40.9, 0), App.Vector(-130.9, -40.9, 0)),  # 6
    Part.LineSegment(App.Vector(-130.9, -40.9, 0), App.Vector(-130.9, -30.9, 0)),  # 7
    Part.LineSegment(App.Vector(-130.9, -30.9, 0), App.Vector(-129.6, -30.9, 0)),  # 8
    Part.LineSegment(App.Vector(-129.6, -30.9, 0), App.Vector(-129.6, -34.9, 0)),  # 9
    Part.LineSegment(App.Vector(-129.6, -34.9, 0), App.Vector(-129, -35.5, 0)),  # 10
    Part.LineSegment(App.Vector(-129, -35.5, 0), App.Vector(-125.4, -30.9, 0)),  # 11
], False)
sketch12.addConstraint([
    Sketcher.Constraint("Coincident", 0, 2, 1, 1),
    Sketcher.Constraint("Coincident", 1, 2, 2, 1),
    Sketcher.Constraint("Coincident", 2, 2, 3, 1),
    Sketcher.Constraint("Coincident", 3, 2, 4, 1),
    Sketcher.Constraint("Coincident", 4, 2, 5, 1),
    Sketcher.Constraint("Coincident", 5, 2, 6, 1),
    Sketcher.Constraint("Coincident", 6, 2, 7, 1),
    Sketcher.Constraint("Coincident", 7, 2, 8, 1),
    Sketcher.Constraint("Coincident", 8, 2, 9, 1),
    Sketcher.Constraint("Coincident", 9, 2, 10, 1),
    Sketcher.Constraint("Coincident", 10, 2, 11, 1),
    Sketcher.Constraint("Coincident", 11, 2, 0, 1),
    Sketcher.Constraint("Horizontal", 0),
    Sketcher.Constraint("Horizontal", 3),
    Sketcher.Constraint("Vertical", 5),
    Sketcher.Constraint("Horizontal", 6),
    Sketcher.Constraint("Vertical", 7),
    Sketcher.Constraint("Horizontal", 8),
    Sketcher.Constraint("Vertical", 9),
    Sketcher.Constraint("Horizontal", 3, 2, 5, 2),
    Sketcher.Constraint("Horizontal", 0, 2, 7, 2),
    Sketcher.Constraint("Vertical", 5, 2, 8, 2),
    Sketcher.Constraint("DistanceY", 7, 1, 7, 2, Q("10 mm")),
    Sketcher.Constraint("DistanceY", 2, 2, -1, 1, Q("40.876 mm")),
    Sketcher.Constraint("Angle", 10, Q("-48.3697 deg")),
    Sketcher.Constraint("DistanceX", 0, 1, 0, 2, Q("1.726 mm")),
    Sketcher.Constraint("DistanceX", 6, 2, 6, 1, Q("1.329 mm")),
    Sketcher.Constraint("DistanceY", 9, 2, 9, 1, Q("3.995 mm")),
    Sketcher.Constraint("DistanceY", 4, 2, 9, 2, Q("1.41 mm")),
    Sketcher.Constraint("DistanceX", 3, 2, 3, 1, Q("1.6207 mm")),
    Sketcher.Constraint("DistanceX", 1, 2, 0, 2, Q("4.384 mm")),
    Sketcher.Constraint("DistanceX", 1, 2, 2, 2, Q("4.141 mm")),
    Sketcher.Constraint("Distance", 1, Q("7.0608 mm")),
    Sketcher.Constraint("Distance", 4, Q("6.1584 mm")),
    Sketcher.Constraint("Distance", 10, Q("0.8782 mm")),
    Sketcher.Constraint("DistanceX", 0, 2, -1, 1, Q("123.6414 mm")),
])
pad5 = body.newObject("PartDesign::Pad", "Pad004")
pad5.Profile = sketch12
pad5.Length = 1.5
pad5.Reversed = True

# Sketch on XY plane
sketch13 = body.newObject("Sketcher::SketchObject", "Sketch012")
sketch13.AttachmentSupport = (doc.getObject("XY_Plane"), [""])
sketch13.MapMode = "FlatFace"
sketch13.AttachmentOffset = App.Placement(App.Vector(0, 0, -25), App.Rotation())
sketch13.addGeometry([
    Part.LineSegment(App.Vector(-73, 14, 0), App.Vector(-97, 14, 0)),
    Part.LineSegment(App.Vector(-97, 14, 0), App.Vector(-97, 2, 0)),
    Part.LineSegment(App.Vector(-97, 2, 0), App.Vector(-73, 2, 0)),
    Part.LineSegment(App.Vector(-73, 2, 0), App.Vector(-73, 14, 0)),
], False)
sketch13.addConstraint([
    Sketcher.Constraint("Coincident", 0, 2, 1, 1),
    Sketcher.Constraint("Coincident", 1, 2, 2, 1),
    Sketcher.Constraint("Coincident", 2, 2, 3, 1),
    Sketcher.Constraint("Coincident", 3, 2, 0, 1),
    Sketcher.Constraint("Horizontal", 0),
    Sketcher.Constraint("Vertical", 1),
    Sketcher.Constraint("Horizontal", 2),
    Sketcher.Constraint("Vertical", 3),
    Sketcher.Constraint("DistanceY", 1, 2, 1, 1, Q("12 mm")),
    Sketcher.Constraint("DistanceX", 0, 2, 0, 1, Q("23.6002 mm")),
    Sketcher.Constraint("DistanceX", 2, 2, -1, 1, Q("73.143 mm")),
    Sketcher.Constraint("DistanceY", -1, 1, 0, 2, Q("14 mm")),
])
pocket8 = body.newObject("PartDesign::Pocket", "Pocket007")
pocket8.Profile = sketch13
pocket8.Length = 3

# Sketch on XY plane
sketch14 = body.newObject("Sketcher::SketchObject", "Sketch013")
sketch14.AttachmentSupport = (doc.getObject("XY_Plane"), [""])
sketch14.MapMode = "FlatFace"
sketch14.AttachmentOffset = App.Placement(App.Vector(0, 0, -25), App.Rotation())
sketch14.addGeometry([
    Part.LineSegment(App.Vector(-106, 2, 0), App.Vector(-101, 2, 0)),  # 0
    Part.LineSegment(App.Vector(-101, 2, 0), App.Vector(-101, 14, 0)),  # 1
    Part.LineSegment(App.Vector(-101, 14, 0), App.Vector(-106, 14, 0)),  # 2
    Part.LineSegment(App.Vector(-106, 14, 0), App.Vector(-106, 2, 0)),  # 3
    Part.LineSegment(App.Vector(-69, 14, 0), App.Vector(-69, 2, 0)),  # 4
    Part.LineSegment(App.Vector(-69, 2, 0), App.Vector(-64, 2, 0)),  # 5
    Part.LineSegment(App.Vector(-64, 2, 0), App.Vector(-64, 14, 0)),  # 6
    Part.LineSegment(App.Vector(-64, 14, 0), App.Vector(-69, 14, 0)),  # 7
], False)
sketch14.addConstraint([
    Sketcher.Constraint("Coincident", 0, 2, 1, 1),
    Sketcher.Constraint("Coincident", 1, 2, 2, 1),
    Sketcher.Constraint("Coincident", 2, 2, 3, 1),
    Sketcher.Constraint("Coincident", 3, 2, 0, 1),
    Sketcher.Constraint("Coincident", 4, 2, 5, 1),
    Sketcher.Constraint("Coincident", 5, 2, 6, 1),
    Sketcher.Constraint("Coincident", 6, 2, 7, 1),
    Sketcher.Constraint("Coincident", 7, 2, 4, 1),
    Sketcher.Constraint("Horizontal", 0),
    Sketcher.Constraint("Vertical", 1),
    Sketcher.Constraint("Horizontal", 2),
    Sketcher.Constraint("Vertical", 3),
    Sketcher.Constraint("Vertical", 4),
    Sketcher.Constraint("Horizontal", 5),
    Sketcher.Constraint("Vertical", 6),
    Sketcher.Constraint("Horizontal", 7),
    Sketcher.Constraint("Horizontal", 3, 2, 4, 2),
    Sketcher.Constraint("Horizontal", 2, 2, 6, 2),
    Sketcher.Constraint("Equal", 2, 5),
    Sketcher.Constraint("DistanceX", 0, 1, 0, 2, Q("5 mm")),
    Sketcher.Constraint("DistanceY", 1, 1, 1, 2, Q("12 mm")),
    Sketcher.Constraint("DistanceY", -1, 1, 0, 2, Q("2 mm")),
    Sketcher.Constraint("DistanceX", 0, 2, -1, 1, Q("101.1 mm")),
    Sketcher.Constraint("DistanceX", 4, 2, -1, 1, Q("68.9 mm")),
])
pad6 = body.newObject("PartDesign::Pad", "Pad005")
pad6.Profile = sketch14
pad6.Length = 3
pad6.Reversed = True

# Sketch on XY plane
sketch15 = body.newObject("Sketcher::SketchObject", "Sketch014")
sketch15.AttachmentSupport = (doc.getObject("XY_Plane"), [""])
sketch15.MapMode = "FlatFace"
sketch15.AttachmentOffset = App.Placement(App.Vector(0, 0, -95), App.Rotation())
sketch15.addGeometry([
    Part.LineSegment(App.Vector(-97, 14, 0), App.Vector(-73, 14, 0)),
    Part.LineSegment(App.Vector(-73, 14, 0), App.Vector(-73, 2, 0)),
    Part.LineSegment(App.Vector(-73, 2, 0), App.Vector(-97, 2, 0)),
    Part.LineSegment(App.Vector(-97, 2, 0), App.Vector(-97, 14, 0)),
], False)
sketch15.addConstraint([
    Sketcher.Constraint("Coincident", 0, 2, 1, 1),
    Sketcher.Constraint("Coincident", 1, 2, 2, 1),
    Sketcher.Constraint("Coincident", 2, 2, 3, 1),
    Sketcher.Constraint("Coincident", 3, 2, 0, 1),
    Sketcher.Constraint("Horizontal", 0),
    Sketcher.Constraint("Vertical", 1),
    Sketcher.Constraint("Horizontal", 2),
    Sketcher.Constraint("Vertical", 3),
    Sketcher.Constraint("DistanceY", 1, 2, 1, 1, Q("12 mm")),
    Sketcher.Constraint("DistanceY", -1, 1, 0, 2, Q("14 mm")),
    Sketcher.Constraint("DistanceX", 0, 1, 0, 2, Q("23.6002 mm")),
    Sketcher.Constraint("DistanceX", 0, 2, -1, 1, Q("73.143 mm")),
])
pocket9 = body.newObject("PartDesign::Pocket", "Pocket008")
pocket9.Profile = sketch15
pocket9.Length = 3
pocket9.Reversed = True

# Sketch on XY plane
sketch16 = body.newObject("Sketcher::SketchObject", "Sketch015")
sketch16.AttachmentSupport = (doc.getObject("XY_Plane"), [""])
sketch16.MapMode = "FlatFace"
sketch16.AttachmentOffset = App.Placement(App.Vector(0, 0, -95), App.Rotation())
sketch16.addGeometry([
    Part.LineSegment(App.Vector(-64, 2, 0), App.Vector(-69, 2, 0)),  # 0
    Part.LineSegment(App.Vector(-69, 2, 0), App.Vector(-69, 14, 0)),  # 1
    Part.LineSegment(App.Vector(-69, 14, 0), App.Vector(-64, 14, 0)),  # 2
    Part.LineSegment(App.Vector(-64, 14, 0), App.Vector(-64, 2, 0)),  # 3
    Part.LineSegment(App.Vector(-101, 14, 0), App.Vector(-101, 2, 0)),  # 4
    Part.LineSegment(App.Vector(-101, 2, 0), App.Vector(-106, 2, 0)),  # 5
    Part.LineSegment(App.Vector(-106, 2, 0), App.Vector(-106, 14, 0)),  # 6
    Part.LineSegment(App.Vector(-106, 14, 0), App.Vector(-101, 14, 0)),  # 7
], False)
sketch16.addConstraint([
    Sketcher.Constraint("Coincident", 0, 2, 1, 1),
    Sketcher.Constraint("Coincident", 1, 2, 2, 1),
    Sketcher.Constraint("Coincident", 2, 2, 3, 1),
    Sketcher.Constraint("Coincident", 3, 2, 0, 1),
    Sketcher.Constraint("Coincident", 4, 2, 5, 1),
    Sketcher.Constraint("Coincident", 5, 2, 6, 1),
    Sketcher.Constraint("Coincident", 6, 2, 7, 1),
    Sketcher.Constraint("Coincident", 7, 2, 4, 1),
    Sketcher.Constraint("Horizontal", 0),
    Sketcher.Constraint("Vertical", 1),
    Sketcher.Constraint("Horizontal", 2),
    Sketcher.Constraint("Vertical", 3),
    Sketcher.Constraint("Vertical", 4),
    Sketcher.Constraint("Horizontal", 5),
    Sketcher.Constraint("Vertical", 6),
    Sketcher.Constraint("Horizontal", 7),
    Sketcher.Constraint("Horizontal", 3, 2, 4, 2),
    Sketcher.Constraint("Horizontal", 2, 2, 6, 2),
    Sketcher.Constraint("Equal", 2, 5),
    Sketcher.Constraint("DistanceX", 0, 2, 0, 1, Q("5 mm")),
    Sketcher.Constraint("DistanceY", 1, 1, 1, 2, Q("12 mm")),
    Sketcher.Constraint("DistanceY", -1, 1, 0, 2, Q("2 mm")),
    Sketcher.Constraint("DistanceX", 0, 2, -1, 1, Q("68.9 mm")),
    Sketcher.Constraint("DistanceX", 4, 2, -1, 1, Q("101.1 mm")),
])
pad7 = body.newObject("PartDesign::Pad", "Pad006")
pad7.Profile = sketch16
pad7.Length = 3

# Sketch on XZ plane
sketch17 = body.newObject("Sketcher::SketchObject", "Sketch016")
sketch17.AttachmentSupport = (doc.getObject("XZ_Plane"), [""])
sketch17.MapMode = "FlatFace"
sketch17.addGeometry([
    Part.Circle(App.Vector(-6, -74.9, 0), App.Vector(0, 0, 1), 3.5),
    Part.Circle(App.Vector(-30.1, -74.9, 0), App.Vector(0, 0, 1), 3.5),
    Part.Circle(App.Vector(-30.1, -43.4, 0), App.Vector(0, 0, 1), 3.5),
    Part.Circle(App.Vector(-6, -43.4, 0), App.Vector(0, 0, 1), 3.5),
], False)
sketch17.addConstraint([
    Sketcher.Constraint("Equal", 0, 1),
    Sketcher.Constraint("Equal", 1, 2),
    Sketcher.Constraint("Equal", 2, 3),
    Sketcher.Constraint("Horizontal", 0, 3, 1, 3),
    Sketcher.Constraint("Horizontal", 2, 3, 3, 3),
    Sketcher.Constraint("Vertical", 1, 3, 2, 3),
    Sketcher.Constraint("Vertical", 0, 3, 3, 3),
    Sketcher.Constraint("Diameter", 0, Q("7 mm")),
    Sketcher.Constraint("DistanceX", 0, 3, -1, 1, Q("6.036 mm")),
    Sketcher.Constraint("DistanceY", 0, 3, -1, 1, Q("74.9232 mm")),
    Sketcher.Constraint("DistanceX", 1, 3, -1, 1, Q("30.0796 mm")),
    Sketcher.Constraint("DistanceY", 2, 3, -1, 1, Q("43.3906 mm")),
])
pocket10 = body.newObject("PartDesign::Pocket", "Pocket009")
pocket10.Profile = sketch17
pocket10.Length = 2

# Sketch on XZ plane
sketch18 = body.newObject("Sketcher::SketchObject", "Sketch017")
sketch18.AttachmentSupport = (doc.getObject("XZ_Plane"), [""])
sketch18.MapMode = "FlatFace"
sketch18.AttachmentOffset = App.Placement(App.Vector(0, 0, -2), App.Rotation())
sketch18.addGeometry([
    Part.Circle(App.Vector(-95.9, -41.8, 0), App.Vector(0, 0, 1), 2),
    Part.Circle(App.Vector(-95.9, -78.8, 0), App.Vector(0, 0, 1), 2),
], False)
sketch18.addConstraint([
    Sketcher.Constraint("Equal", 0, 1),
    Sketcher.Constraint("Vertical", 0, 3, 1, 3),
    Sketcher.Constraint("Diameter", 0, Q("4 mm")),
    Sketcher.Constraint("DistanceY", 1, 3, 0, 3, Q("37 mm")),
    Sketcher.Constraint("DistanceX", 0, 3, -1, 1, Q("95.9115 mm")),
    Sketcher.Constraint("DistanceY", 0, 3, -1, 1, Q("41.8497 mm")),
])
pocket11 = body.newObject("PartDesign::Pocket", "Pocket010")
pocket11.Profile = sketch18
pocket11.Length = 3
pocket11.Reversed = True

# Sketch on XZ plane
sketch19 = body.newObject("Sketcher::SketchObject", "Sketch018")
sketch19.AttachmentSupport = (doc.getObject("XZ_Plane"), [""])
sketch19.MapMode = "FlatFace"
sketch19.addGeometry([
    Part.LineSegment(App.Vector(-66, -37, 0), App.Vector(-66, -64, 0)),  # 0
    Part.LineSegment(App.Vector(-66, -64, 0), App.Vector(-60, -64, 0)),  # 1
    Part.LineSegment(App.Vector(-60, -64, 0), App.Vector(-60, -37, 0)),  # 2
    Part.LineSegment(App.Vector(-60, -37, 0), App.Vector(-66, -37, 0)),  # 3
    Part.LineSegment(App.Vector(-16, -37, 0), App.Vector(-22, -37, 0)),  # 4
    Part.LineSegment(App.Vector(-22, -37, 0), App.Vector(-22, -64, 0)),  # 5
    Part.LineSegment(App.Vector(-22, -64, 0), App.Vector(-16, -64, 0)),  # 6
    Part.LineSegment(App.Vector(-16, -64, 0), App.Vector(-16, -37, 0)),  # 7
], False)
sketch19.addConstraint([
    Sketcher.Constraint("Coincident", 0, 2, 1, 1),
    Sketcher.Constraint("Coincident", 1, 2, 2, 1),
    Sketcher.Constraint("Coincident", 2, 2, 3, 1),
    Sketcher.Constraint("Coincident", 3, 2, 0, 1),
    Sketcher.Constraint("Coincident", 4, 2, 5, 1),
    Sketcher.Constraint("Coincident", 5, 2, 6, 1),
    Sketcher.Constraint("Coincident", 6, 2, 7, 1),
    Sketcher.Constraint("Coincident", 7, 2, 4, 1),
    Sketcher.Constraint("Vertical", 0),
    Sketcher.Constraint("Horizontal", 1),
    Sketcher.Constraint("Vertical", 2),
    Sketcher.Constraint("Horizontal", 3),
    Sketcher.Constraint("Horizontal", 4),
    Sketcher.Constraint("Vertical", 5),
    Sketcher.Constraint("Horizontal", 6),
    Sketcher.Constraint("Vertical", 7),
    Sketcher.Constraint("Horizontal", 3, 2, 4, 2),
    Sketcher.Constraint("Horizontal", 1, 2, 5, 2),
    Sketcher.Constraint("Equal", 3, 4),
    Sketcher.Constraint("DistanceX", 1, 1, 1, 2, Q("6 mm")),
    Sketcher.Constraint("DistanceY", 0, 2, 0, 1, Q("27 mm")),
    Sketcher.Constraint("DistanceX", 2, 2, 4, 2, Q("37.5 mm")),
    Sketcher.Constraint("DistanceY", 2, 2, -1, 1, Q("37.1992 mm")),
    Sketcher.Constraint("DistanceX", 6, 2, -1, 1, Q("16.4168 mm")),
])
pocket12 = body.newObject("PartDesign::Pocket", "Pocket011")
pocket12.Profile = sketch19
pocket12.Length = 8

doc.recompute()
